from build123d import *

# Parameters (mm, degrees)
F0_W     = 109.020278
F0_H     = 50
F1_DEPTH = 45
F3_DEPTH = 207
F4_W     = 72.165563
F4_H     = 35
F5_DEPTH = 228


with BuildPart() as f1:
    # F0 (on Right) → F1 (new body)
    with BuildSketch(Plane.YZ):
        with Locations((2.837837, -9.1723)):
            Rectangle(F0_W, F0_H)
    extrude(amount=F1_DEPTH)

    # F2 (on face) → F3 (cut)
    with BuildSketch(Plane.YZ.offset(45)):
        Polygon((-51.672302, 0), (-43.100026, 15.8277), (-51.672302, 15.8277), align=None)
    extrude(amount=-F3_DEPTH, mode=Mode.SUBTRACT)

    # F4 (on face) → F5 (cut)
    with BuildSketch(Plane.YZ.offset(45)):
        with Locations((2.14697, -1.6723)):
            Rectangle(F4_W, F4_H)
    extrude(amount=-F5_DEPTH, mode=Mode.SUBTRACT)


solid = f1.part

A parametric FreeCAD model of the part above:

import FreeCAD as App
import Part
import Sketcher


def add_polygon(sketch, points):
    """Adds a closed chain of lines whose ends are joined by coincident constraints."""
    first, n = sketch.GeometryCount, len(points)
    for a, b in zip(points, points[1:] + points[:1]):
        sketch.addGeometry(Part.LineSegment(App.Vector(*a, 0), App.Vector(*b, 0)), False)
    for i in range(n):
        sketch.addConstraint(Sketcher.Constraint("Coincident", first + i, 2, first + (i + 1) % n, 1))

doc = App.newDocument("Part")
body = doc.addObject("PartDesign::Body", "Body")

# Sketch on YZ plane
sketch1 = doc.addObject("Sketcher::SketchObject", "Sketch")
body.addObject(sketch1)
sketch1.AttachmentSupport = (doc.YZ_Plane, [""])
sketch1.MapMode = "FlatFace"
add_polygon(sketch1, [(-52, 16), (-52, -34), (57, -34), (57, 16)])  # lines 0-3
sketch1.addConstraint([
    Sketcher.Constraint("Vertical", 0),
    Sketcher.Constraint("Horizontal", 1),
    Sketcher.Constraint("Vertical", 2),
    Sketcher.Constraint("Horizontal", 3),
    Sketcher.Constraint("DistanceY", 0, 2, 0, 1, 50.0),
    Sketcher.Constraint("DistanceX", 1, 1, 1, 2, 109.020278),
    Sketcher.Constraint("DistanceY", 0, 2, -1, 1, 34.1723),
    Sketcher.Constraint("DistanceX", 0, 2, -1, 1, 51.672302),
])
pad1 = doc.addObject("PartDesign::Pad", "Pad")
body.addObject(pad1)
pad1.Profile = sketch1
pad1.Length = 45

# Sketch on YZ plane
sketch2 = doc.addObject("Sketcher::SketchObject", "Sketch001")
body.addObject(sketch2)
sketch2.AttachmentSupport = (doc.YZ_Plane, [""])
sketch2.MapMode = "FlatFace"
sketch2.AttachmentOffset = App.Placement(App.Vector(0, 0, 45), App.Rotation())
add_polygon(sketch2, [(-52, 0), (-43, 16), (-52, 16)])  # lines 0-2
sketch2.addConstraint([
    Sketcher.Constraint("Horizontal", 1),
    Sketcher.Constraint("Vertical", 2),
    Sketcher.Constraint("PointOnObject", 2, 2, -1),
    Sketcher.Constraint("Distance", 0, 18.0),
    Sketcher.Constraint("DistanceY", 2, 2, 2, 1, 15.8277),
    Sketcher.Constraint("DistanceX", 0, 2, -1, 1, 43.100026),
])
pocket1 = doc.addObject("PartDesign::Pocket", "Pocket")
body.addObject(pocket1)
pocket1.Profile = sketch2
pocket1.Length = 207

# Sketch on YZ plane
sketch3 = doc.addObject("Sketcher::SketchObject", "Sketch002")
body.addObject(sketch3)
sketch3.AttachmentSupport = (doc.YZ_Plane, [""])
sketch3.MapMode = "FlatFace"
sketch3.AttachmentOffset = App.Placement(App.Vector(0, 0, 45), App.Rotation())
add_polygon(sketch3, [(-34, 16), (-34, -19), (38, -19), (38, 16)])  # lines 0-3
sketch3.addConstraint([
    Sketcher.Constraint("Vertical", 0),
    Sketcher.Constraint("Horizontal", 1),
    Sketcher.Constraint("Vertical", 2),
    Sketcher.Constraint("Horizontal", 3),
    Sketcher.Constraint("DistanceY", 0, 2, 0, 1, 35.0),
    Sketcher.Constraint("DistanceY", 0, 2, -1, 1, 19.1723),
    Sketcher.Constraint("DistanceX", 1, 1, 1, 2, 72.165563),
    Sketcher.Constraint("DistanceX", 0, 2, -1, 1, 33.935811),
])
pocket2 = doc.addObject("PartDesign::Pocket", "Pocket001")
body.addObject(pocket2)
pocket2.Profile = sketch3
pocket2.Length = 228

doc.recompute()
